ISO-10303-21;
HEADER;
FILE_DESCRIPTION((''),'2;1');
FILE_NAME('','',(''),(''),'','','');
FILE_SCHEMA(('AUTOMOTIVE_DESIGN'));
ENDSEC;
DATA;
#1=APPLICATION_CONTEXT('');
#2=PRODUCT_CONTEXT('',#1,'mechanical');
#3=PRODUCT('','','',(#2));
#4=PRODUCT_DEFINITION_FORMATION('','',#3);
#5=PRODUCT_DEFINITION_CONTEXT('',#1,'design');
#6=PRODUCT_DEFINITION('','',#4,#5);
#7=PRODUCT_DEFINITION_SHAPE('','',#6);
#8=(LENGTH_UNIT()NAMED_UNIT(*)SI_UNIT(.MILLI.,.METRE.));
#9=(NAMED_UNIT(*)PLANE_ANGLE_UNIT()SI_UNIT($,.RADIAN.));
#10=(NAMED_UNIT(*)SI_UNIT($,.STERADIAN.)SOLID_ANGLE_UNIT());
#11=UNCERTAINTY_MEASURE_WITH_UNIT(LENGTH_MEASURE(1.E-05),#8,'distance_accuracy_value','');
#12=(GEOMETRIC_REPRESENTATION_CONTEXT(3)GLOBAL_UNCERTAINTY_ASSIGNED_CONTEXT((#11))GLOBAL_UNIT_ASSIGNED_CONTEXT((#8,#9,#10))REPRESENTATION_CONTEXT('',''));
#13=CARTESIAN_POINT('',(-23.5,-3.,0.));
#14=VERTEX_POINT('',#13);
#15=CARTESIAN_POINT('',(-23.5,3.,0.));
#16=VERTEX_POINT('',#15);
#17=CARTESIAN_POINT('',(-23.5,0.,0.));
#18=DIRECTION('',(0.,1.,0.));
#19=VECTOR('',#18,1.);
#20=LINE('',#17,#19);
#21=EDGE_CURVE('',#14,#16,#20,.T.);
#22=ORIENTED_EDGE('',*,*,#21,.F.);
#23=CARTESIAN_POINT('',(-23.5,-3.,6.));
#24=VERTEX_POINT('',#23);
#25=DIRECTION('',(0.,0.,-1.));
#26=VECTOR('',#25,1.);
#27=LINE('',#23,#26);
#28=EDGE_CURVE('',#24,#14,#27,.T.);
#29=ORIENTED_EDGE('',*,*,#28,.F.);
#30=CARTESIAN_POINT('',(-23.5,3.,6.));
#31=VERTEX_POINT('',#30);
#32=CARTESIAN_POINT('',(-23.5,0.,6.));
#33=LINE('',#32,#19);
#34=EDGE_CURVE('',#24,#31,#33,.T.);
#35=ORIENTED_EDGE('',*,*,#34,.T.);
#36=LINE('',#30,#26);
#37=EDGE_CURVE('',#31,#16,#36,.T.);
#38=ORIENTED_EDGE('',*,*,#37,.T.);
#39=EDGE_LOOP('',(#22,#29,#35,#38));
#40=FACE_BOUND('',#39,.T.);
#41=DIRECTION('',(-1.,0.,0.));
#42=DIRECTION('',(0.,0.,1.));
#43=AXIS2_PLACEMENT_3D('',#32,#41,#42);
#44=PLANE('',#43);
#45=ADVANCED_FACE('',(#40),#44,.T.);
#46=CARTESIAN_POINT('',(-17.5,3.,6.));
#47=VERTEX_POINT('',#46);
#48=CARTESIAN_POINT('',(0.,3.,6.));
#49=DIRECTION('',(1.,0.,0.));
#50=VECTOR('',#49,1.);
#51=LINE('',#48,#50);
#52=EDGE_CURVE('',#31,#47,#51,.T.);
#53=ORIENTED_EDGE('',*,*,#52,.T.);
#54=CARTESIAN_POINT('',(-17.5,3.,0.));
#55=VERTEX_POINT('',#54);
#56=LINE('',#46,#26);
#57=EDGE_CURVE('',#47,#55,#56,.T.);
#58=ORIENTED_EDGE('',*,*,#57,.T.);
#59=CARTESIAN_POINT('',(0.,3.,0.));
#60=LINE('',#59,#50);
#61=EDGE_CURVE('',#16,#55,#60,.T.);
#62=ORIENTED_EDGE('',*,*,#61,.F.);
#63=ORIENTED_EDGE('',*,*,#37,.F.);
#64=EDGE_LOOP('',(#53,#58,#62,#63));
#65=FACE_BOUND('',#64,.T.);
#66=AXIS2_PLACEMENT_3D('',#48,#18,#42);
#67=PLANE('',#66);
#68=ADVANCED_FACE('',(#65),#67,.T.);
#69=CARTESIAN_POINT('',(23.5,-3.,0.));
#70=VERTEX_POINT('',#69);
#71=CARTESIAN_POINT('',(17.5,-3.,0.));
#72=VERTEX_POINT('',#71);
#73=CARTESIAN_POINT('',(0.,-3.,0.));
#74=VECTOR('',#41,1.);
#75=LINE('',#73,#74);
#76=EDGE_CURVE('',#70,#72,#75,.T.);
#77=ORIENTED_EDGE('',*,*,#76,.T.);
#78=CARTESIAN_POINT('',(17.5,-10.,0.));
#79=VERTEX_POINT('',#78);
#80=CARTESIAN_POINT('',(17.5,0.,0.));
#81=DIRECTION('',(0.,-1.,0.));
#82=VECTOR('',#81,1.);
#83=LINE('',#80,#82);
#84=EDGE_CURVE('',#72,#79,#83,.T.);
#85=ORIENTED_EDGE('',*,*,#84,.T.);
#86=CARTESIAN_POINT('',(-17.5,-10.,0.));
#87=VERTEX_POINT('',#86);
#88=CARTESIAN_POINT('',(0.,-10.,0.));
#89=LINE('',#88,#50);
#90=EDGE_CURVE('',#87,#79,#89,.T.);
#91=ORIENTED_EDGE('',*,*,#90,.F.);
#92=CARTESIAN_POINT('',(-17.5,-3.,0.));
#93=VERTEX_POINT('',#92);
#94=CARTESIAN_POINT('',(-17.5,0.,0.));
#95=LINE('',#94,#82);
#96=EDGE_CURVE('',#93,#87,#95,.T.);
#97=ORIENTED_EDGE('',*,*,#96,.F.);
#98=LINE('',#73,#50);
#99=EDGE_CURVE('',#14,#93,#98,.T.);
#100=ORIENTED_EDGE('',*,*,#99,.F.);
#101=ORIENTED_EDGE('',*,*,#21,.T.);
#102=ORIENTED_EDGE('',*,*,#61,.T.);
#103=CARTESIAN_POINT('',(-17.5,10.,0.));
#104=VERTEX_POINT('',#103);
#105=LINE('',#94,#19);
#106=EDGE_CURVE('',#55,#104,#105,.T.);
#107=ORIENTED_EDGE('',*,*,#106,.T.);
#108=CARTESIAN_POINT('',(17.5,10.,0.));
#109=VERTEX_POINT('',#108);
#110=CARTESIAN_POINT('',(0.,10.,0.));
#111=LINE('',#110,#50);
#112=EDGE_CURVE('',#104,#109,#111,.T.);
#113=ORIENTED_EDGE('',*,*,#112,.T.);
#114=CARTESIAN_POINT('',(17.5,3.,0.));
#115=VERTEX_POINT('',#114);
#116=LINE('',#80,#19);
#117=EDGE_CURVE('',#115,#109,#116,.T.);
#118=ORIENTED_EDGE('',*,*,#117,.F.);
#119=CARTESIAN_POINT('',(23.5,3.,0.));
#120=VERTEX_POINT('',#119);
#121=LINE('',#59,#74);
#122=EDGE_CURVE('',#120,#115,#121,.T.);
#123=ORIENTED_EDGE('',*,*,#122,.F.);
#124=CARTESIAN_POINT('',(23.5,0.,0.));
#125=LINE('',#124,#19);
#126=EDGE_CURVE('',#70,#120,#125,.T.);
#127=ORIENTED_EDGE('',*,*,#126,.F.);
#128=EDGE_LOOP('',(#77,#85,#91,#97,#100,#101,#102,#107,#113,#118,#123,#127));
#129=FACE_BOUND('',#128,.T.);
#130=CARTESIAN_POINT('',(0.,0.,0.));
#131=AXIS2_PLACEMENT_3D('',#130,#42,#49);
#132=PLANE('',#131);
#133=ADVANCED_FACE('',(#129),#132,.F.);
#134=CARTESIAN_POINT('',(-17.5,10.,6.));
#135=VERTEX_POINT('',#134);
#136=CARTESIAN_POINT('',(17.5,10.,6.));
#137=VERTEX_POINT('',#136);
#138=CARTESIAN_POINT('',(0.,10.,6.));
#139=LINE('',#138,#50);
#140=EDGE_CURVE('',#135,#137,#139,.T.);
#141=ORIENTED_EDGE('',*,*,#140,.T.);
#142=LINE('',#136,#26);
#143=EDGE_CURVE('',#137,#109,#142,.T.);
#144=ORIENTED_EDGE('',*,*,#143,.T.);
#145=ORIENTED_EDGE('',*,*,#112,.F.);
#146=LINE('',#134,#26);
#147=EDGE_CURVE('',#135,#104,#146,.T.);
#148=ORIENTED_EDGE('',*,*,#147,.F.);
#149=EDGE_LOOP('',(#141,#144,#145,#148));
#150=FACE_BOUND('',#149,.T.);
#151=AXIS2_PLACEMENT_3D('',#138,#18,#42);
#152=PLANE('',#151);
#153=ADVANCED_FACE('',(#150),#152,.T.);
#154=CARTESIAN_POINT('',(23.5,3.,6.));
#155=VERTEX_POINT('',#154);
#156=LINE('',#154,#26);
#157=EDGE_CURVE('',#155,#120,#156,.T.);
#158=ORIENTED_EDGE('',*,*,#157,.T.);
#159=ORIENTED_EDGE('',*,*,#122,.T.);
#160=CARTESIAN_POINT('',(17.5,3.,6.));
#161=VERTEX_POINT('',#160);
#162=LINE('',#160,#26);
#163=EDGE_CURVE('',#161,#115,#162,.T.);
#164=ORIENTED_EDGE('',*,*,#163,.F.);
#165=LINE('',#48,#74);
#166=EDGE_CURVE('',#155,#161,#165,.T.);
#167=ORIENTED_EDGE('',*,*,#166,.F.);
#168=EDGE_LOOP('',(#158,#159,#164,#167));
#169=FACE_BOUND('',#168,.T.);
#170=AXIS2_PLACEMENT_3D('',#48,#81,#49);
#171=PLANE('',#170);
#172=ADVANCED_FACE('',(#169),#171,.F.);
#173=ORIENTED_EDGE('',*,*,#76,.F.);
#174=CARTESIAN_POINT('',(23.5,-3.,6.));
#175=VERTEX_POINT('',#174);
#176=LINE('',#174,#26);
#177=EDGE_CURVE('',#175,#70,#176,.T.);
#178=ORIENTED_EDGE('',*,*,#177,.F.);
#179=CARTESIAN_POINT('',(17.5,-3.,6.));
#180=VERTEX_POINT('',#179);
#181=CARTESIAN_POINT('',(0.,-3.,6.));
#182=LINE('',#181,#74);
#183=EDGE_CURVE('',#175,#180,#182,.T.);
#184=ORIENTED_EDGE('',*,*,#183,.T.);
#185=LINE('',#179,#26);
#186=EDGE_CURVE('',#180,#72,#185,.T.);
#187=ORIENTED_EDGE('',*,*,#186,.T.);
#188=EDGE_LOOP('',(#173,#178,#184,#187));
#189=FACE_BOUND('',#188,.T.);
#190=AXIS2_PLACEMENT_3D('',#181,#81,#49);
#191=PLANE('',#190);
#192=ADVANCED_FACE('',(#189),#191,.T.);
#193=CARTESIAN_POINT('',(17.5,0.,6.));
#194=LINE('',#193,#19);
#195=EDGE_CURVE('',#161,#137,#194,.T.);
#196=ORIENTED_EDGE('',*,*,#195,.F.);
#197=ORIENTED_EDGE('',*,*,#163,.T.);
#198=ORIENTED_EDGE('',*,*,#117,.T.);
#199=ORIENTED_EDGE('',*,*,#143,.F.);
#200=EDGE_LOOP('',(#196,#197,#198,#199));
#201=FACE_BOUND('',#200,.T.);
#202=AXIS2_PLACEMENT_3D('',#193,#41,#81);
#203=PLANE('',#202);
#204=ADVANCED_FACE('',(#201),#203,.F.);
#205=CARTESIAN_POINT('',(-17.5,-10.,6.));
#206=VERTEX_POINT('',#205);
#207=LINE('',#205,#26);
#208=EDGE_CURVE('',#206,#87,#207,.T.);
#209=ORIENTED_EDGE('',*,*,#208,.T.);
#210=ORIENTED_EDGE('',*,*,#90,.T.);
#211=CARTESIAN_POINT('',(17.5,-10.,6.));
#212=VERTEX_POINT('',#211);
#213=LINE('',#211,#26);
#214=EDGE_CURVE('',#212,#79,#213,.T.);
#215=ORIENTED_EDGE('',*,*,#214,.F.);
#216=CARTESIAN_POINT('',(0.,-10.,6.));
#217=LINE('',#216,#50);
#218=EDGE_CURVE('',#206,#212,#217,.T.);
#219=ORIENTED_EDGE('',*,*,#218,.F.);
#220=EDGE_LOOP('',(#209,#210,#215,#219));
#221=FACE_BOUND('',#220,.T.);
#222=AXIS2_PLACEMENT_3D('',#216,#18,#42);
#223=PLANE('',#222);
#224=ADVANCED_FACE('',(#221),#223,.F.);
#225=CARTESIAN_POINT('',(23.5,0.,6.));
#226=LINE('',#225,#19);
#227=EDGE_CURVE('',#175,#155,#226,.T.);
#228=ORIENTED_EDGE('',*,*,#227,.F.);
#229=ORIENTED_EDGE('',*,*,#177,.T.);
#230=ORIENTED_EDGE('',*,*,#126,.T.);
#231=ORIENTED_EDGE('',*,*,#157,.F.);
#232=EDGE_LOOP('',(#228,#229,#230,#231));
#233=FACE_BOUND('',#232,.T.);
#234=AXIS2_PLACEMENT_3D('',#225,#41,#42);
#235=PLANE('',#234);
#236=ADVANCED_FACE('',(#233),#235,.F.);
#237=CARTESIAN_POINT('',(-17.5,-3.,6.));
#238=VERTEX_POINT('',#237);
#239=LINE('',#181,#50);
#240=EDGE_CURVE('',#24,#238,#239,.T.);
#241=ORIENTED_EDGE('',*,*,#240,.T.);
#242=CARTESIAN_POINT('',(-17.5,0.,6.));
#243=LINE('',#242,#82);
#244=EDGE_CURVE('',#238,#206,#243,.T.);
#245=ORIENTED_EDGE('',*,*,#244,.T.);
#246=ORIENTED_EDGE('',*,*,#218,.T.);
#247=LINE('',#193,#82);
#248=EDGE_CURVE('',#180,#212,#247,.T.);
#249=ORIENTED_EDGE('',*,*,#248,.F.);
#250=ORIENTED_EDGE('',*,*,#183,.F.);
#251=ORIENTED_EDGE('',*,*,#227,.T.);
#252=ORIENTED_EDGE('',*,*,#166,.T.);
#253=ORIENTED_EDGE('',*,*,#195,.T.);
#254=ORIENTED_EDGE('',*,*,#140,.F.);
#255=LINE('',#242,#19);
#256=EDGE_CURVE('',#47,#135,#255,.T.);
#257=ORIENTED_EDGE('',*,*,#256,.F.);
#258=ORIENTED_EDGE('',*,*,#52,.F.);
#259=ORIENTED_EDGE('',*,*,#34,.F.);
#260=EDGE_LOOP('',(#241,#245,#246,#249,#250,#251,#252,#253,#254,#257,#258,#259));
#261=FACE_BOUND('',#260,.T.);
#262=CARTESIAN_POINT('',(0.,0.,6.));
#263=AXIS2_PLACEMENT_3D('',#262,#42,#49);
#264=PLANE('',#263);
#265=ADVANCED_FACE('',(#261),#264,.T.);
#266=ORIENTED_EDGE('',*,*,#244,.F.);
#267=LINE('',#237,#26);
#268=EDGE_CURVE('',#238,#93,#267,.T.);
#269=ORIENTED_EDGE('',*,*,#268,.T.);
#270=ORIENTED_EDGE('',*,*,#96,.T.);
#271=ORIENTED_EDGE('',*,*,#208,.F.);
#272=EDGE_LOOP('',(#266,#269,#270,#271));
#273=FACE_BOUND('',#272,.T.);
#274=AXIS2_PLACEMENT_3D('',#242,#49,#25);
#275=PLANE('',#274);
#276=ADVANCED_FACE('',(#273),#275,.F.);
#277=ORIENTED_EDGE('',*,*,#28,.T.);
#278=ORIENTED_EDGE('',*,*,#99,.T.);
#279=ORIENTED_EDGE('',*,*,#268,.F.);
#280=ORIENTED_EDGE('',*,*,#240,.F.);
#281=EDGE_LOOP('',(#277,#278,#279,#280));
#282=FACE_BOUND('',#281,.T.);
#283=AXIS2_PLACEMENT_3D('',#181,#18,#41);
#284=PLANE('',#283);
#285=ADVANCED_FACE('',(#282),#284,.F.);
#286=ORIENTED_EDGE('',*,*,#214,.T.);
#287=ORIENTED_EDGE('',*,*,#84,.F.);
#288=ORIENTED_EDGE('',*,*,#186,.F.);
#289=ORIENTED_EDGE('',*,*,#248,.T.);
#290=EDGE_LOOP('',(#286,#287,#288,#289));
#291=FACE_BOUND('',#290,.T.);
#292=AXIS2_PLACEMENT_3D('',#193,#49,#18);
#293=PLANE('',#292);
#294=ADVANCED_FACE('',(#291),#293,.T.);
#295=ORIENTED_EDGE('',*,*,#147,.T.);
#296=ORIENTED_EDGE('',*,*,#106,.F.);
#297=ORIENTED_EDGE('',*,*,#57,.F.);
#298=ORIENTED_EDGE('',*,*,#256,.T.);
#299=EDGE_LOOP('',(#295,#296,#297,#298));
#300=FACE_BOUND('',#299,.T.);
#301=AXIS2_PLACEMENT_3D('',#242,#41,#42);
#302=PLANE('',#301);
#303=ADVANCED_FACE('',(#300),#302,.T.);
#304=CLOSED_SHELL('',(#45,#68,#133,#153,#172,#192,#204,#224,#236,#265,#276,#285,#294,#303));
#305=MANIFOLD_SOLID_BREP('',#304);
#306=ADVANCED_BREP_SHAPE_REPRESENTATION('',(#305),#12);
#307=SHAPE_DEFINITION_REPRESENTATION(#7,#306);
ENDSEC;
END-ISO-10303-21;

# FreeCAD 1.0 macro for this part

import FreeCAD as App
import Part
import Sketcher

V = App.Vector
Q = App.Units.Quantity

doc = App.newDocument("Part")
body = doc.addObject("PartDesign::Body", "Body")

# Sketch on XY plane
sketch1 = doc.addObject("Sketcher::SketchObject", "Sketch")
body.addObject(sketch1)
sketch1.AttachmentSupport = (doc.XY_Plane, [""])
sketch1.MapMode = "FlatFace"
sketch1.addGeometry([
    Part.LineSegment(V(-24, 3, 0), V(-24, -3, 0)),  # 0
    Part.LineSegment(V(-24, -3, 0), V(-18, -3, 0)),  # 1
    Part.LineSegment(V(-18, -3, 0), V(-18, -10, 0)),  # 2
    Part.LineSegment(V(-18, -10, 0), V(18, -10, 0)),  # 3
    Part.LineSegment(V(18, -10, 0), V(18, -3, 0)),  # 4
    Part.LineSegment(V(18, -3, 0), V(24, -3, 0)),  # 5
    Part.LineSegment(V(24, -3, 0), V(24, 3, 0)),  # 6
    Part.LineSegment(V(24, 3, 0), V(18, 3, 0)),  # 7
    Part.LineSegment(V(18, 3, 0), V(18, 10, 0)),  # 8
    Part.LineSegment(V(18, 10, 0), V(-18, 10, 0)),  # 9
    Part.LineSegment(V(-18, 10, 0), V(-18, 3, 0)),  # 10
    Part.LineSegment(V(-18, 3, 0), V(-24, 3, 0)),  # 11
], False)
sketch1.addConstraint([
    Sketcher.Constraint("Coincident", 0, 2, 1, 1),
    Sketcher.Constraint("Coincident", 1, 2, 2, 1),
    Sketcher.Constraint("Coincident", 2, 2, 3, 1),
    Sketcher.Constraint("Coincident", 3, 2, 4, 1),
    Sketcher.Constraint("Coincident", 4, 2, 5, 1),
    Sketcher.Constraint("Coincident", 5, 2, 6, 1),
    Sketcher.Constraint("Coincident", 6, 2, 7, 1),
    Sketcher.Constraint("Coincident", 7, 2, 8, 1),
    Sketcher.Constraint("Coincident", 8, 2, 9, 1),
    Sketcher.Constraint("Coincident", 9, 2, 10, 1),
    Sketcher.Constraint("Coincident", 10, 2, 11, 1),
    Sketcher.Constraint("Coincident", 11, 2, 0, 1),
    Sketcher.Constraint("Vertical", 0),
    Sketcher.Constraint("Horizontal", 1),
    Sketcher.Constraint("Vertical", 2),
    Sketcher.Constraint("Horizontal", 3),
    Sketcher.Constraint("Vertical", 4),
    Sketcher.Constraint("Horizontal", 5),
    Sketcher.Constraint("Vertical", 6),
    Sketcher.Constraint("Horizontal", 7),
    Sketcher.Constraint("Vertical", 8),
    Sketcher.Constraint("Horizontal", 9),
    Sketcher.Constraint("Vertical", 10),
    Sketcher.Constraint("Horizontal", 11),
    Sketcher.Constraint("Symmetric", 0, 2, 6, 2, -1, 1),
    Sketcher.Constraint("Symmetric", 2, 2, 8, 2, -1, 1),
    Sketcher.Constraint("Symmetric", 4, 2, 10, 2, -1, 1),
    Sketcher.Constraint("Symmetric", 1, 2, 4, 2, -2),
    Sketcher.Constraint("Equal", 11, 0),
    Sketcher.Constraint("DistanceX", 1, 1, 1, 2, Q("6 mm")),
    Sketcher.Constraint("DistanceX", 3, 1, 3, 2, Q("35 mm")),
    Sketcher.Constraint("DistanceY", 2, 2, 2, 1, Q("7 mm")),
])
pad1 = doc.addObject("PartDesign::Pad", "Pad")
body.addObject(pad1)
pad1.Profile = sketch1
pad1.Length = 6

doc.recompute()
